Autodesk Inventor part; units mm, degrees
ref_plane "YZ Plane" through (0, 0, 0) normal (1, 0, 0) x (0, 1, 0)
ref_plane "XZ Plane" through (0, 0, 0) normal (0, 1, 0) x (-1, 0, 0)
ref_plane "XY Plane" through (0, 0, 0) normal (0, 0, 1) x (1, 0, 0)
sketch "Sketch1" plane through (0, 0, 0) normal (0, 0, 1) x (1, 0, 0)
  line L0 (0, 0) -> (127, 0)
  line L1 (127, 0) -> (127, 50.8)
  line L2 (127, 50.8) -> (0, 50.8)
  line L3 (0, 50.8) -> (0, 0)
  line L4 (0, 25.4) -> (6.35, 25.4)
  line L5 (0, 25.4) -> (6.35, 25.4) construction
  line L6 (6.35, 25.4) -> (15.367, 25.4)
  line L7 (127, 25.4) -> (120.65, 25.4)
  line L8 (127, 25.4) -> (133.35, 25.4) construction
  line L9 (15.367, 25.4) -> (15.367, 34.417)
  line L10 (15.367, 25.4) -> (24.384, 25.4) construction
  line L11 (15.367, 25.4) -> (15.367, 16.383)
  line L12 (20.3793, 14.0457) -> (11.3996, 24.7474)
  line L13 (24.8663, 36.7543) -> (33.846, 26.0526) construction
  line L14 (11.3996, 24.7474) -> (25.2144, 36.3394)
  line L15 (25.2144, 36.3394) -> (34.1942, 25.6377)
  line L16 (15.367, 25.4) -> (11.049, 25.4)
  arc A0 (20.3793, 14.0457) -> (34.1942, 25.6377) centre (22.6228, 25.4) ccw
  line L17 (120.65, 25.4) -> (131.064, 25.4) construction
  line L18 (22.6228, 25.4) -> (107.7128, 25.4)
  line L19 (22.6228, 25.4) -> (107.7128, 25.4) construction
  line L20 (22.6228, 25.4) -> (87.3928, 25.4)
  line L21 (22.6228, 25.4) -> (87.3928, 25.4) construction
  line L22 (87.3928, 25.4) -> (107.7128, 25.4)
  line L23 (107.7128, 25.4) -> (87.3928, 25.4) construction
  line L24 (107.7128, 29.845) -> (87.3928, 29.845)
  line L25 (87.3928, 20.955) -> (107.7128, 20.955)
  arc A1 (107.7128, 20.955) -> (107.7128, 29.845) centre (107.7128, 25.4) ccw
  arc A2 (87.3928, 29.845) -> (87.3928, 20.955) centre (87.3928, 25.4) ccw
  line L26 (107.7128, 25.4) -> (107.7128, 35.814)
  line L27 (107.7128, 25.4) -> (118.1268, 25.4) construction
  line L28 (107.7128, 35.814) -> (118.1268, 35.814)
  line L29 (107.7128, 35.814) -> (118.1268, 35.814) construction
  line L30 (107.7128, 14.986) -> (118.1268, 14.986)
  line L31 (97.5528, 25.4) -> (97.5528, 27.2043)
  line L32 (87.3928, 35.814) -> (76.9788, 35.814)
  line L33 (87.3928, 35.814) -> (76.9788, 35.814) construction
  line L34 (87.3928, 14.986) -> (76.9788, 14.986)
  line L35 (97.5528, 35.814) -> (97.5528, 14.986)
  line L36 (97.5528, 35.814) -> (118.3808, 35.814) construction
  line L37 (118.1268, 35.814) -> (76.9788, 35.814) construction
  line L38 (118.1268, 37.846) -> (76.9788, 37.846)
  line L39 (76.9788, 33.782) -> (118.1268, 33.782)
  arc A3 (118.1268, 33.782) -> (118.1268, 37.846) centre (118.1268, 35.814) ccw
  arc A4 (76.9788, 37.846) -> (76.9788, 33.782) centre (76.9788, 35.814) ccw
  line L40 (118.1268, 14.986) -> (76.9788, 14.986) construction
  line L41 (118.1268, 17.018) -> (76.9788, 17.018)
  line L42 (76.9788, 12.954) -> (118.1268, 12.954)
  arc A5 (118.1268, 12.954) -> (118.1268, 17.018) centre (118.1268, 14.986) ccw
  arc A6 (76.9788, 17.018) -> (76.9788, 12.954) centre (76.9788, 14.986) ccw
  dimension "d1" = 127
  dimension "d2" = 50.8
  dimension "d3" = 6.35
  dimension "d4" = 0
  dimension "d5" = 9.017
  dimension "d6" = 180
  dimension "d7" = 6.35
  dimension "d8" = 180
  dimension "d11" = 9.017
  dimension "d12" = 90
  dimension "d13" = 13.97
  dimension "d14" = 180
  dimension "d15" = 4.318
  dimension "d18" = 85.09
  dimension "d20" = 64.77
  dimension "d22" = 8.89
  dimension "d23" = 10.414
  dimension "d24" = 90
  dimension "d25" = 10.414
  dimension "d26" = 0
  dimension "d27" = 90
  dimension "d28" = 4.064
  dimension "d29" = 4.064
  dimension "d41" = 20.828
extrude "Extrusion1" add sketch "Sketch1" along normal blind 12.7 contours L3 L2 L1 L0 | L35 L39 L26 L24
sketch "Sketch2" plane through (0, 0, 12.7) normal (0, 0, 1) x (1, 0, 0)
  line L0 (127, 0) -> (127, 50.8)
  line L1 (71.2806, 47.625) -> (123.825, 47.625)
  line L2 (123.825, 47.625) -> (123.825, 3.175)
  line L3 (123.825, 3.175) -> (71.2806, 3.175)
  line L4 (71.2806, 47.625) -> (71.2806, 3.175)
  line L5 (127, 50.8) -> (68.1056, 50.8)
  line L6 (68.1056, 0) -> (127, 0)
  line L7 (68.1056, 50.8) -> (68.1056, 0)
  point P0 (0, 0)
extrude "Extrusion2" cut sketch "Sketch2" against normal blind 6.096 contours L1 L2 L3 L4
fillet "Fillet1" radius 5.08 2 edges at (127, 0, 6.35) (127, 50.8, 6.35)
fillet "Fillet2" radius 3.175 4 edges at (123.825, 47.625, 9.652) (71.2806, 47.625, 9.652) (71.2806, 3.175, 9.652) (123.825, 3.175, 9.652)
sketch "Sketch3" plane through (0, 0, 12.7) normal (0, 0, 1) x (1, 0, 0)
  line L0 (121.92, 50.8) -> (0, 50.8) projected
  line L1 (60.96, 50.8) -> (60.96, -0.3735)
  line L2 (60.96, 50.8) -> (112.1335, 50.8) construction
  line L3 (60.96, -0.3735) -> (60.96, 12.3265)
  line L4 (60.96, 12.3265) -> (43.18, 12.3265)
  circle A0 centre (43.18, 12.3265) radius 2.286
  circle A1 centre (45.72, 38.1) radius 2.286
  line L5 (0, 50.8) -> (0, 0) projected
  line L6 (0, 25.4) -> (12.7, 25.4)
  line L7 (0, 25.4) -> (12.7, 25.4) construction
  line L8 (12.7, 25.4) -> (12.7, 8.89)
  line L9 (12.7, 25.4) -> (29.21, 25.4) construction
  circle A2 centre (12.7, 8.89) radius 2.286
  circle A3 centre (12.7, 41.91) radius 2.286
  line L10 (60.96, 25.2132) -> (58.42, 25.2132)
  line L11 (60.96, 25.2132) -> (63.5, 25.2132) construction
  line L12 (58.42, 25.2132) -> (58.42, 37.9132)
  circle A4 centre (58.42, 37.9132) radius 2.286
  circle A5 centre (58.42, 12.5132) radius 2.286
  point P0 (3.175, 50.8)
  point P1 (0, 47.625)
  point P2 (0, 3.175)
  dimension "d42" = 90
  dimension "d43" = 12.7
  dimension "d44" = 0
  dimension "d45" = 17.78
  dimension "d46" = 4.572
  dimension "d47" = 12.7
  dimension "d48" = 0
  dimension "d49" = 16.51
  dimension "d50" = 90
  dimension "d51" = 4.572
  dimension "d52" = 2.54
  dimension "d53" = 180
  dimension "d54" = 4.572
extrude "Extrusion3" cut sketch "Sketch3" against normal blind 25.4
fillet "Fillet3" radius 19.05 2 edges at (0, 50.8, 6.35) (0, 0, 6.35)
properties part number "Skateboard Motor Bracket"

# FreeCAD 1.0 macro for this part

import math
import FreeCAD as App
import Part
import Sketcher
Q = App.Units.Quantity


def edges_at(feature, points):
    """Names of the edges that pass closest to the given points."""
    edges = feature.Shape.Edges
    near = lambda p: min(range(len(edges)), key=lambda i: edges[i].distToShape(Part.Vertex(*p))[0])
    return sorted({f"Edge{near(p) + 1}" for p in points})


def add_polygon(sketch, points):
    """Adds a closed chain of lines whose ends are joined by coincident constraints."""
    first, n = sketch.GeometryCount, len(points)
    for a, b in zip(points, points[1:] + points[:1]):
        sketch.addGeometry(Part.LineSegment(App.Vector(*a, 0), App.Vector(*b, 0)), False)
    for i in range(n):
        sketch.addConstraint(Sketcher.Constraint("Coincident", first + i, 2, first + (i + 1) % n, 1))

doc = App.newDocument("Part")
body = doc.addObject("PartDesign::Body", "Body")

sketch1 = body.newObject("Sketcher::SketchObject", "Sketch")
sketch1.AttachmentSupport = (doc.getObject("XY_Plane"), [""])
sketch1.MapMode = "FlatFace"
add_polygon(sketch1, [(0, 25.4), (0, 0), (127, 0), (127, 50.8), (0, 50.8)])
sketch1.addGeometry(Part.LineSegment(App.Vector(11.4, 24.75, 0), App.Vector(12.18, 25.4, 0)), False)
sketch1.addGeometry(Part.LineSegment(App.Vector(12.18, 25.4, 0), App.Vector(25.21, 36.34, 0)), False)
sketch1.addGeometry(Part.LineSegment(App.Vector(25.21, 36.34, 0), App.Vector(34.19, 25.64, 0)), False)
sketch1.addGeometry(Part.ArcOfCircle(Part.Circle(App.Vector(22.62, 25.4, 0), App.Vector(0, 0, 1), 11.57), math.radians(0), math.radians(1.18)), False)
sketch1.addGeometry(Part.ArcOfCircle(Part.Circle(App.Vector(22.62, 25.4, 0), App.Vector(0, 0, 1), 11.57), math.radians(-101), math.radians(0)), False)
sketch1.addGeometry(Part.LineSegment(App.Vector(20.38, 14.05, 0), App.Vector(11.4, 24.75, 0)), False)
sketch1.addGeometry(Part.LineSegment(App.Vector(76.98, 17.02, 0), App.Vector(97.55, 17.02, 0)), False)
sketch1.addGeometry(Part.LineSegment(App.Vector(97.55, 17.02, 0), App.Vector(118.13, 17.02, 0)), False)
sketch1.addGeometry(Part.ArcOfCircle(Part.Circle(App.Vector(118.13, 14.99, 0), App.Vector(0, 0, 1), 2.03), math.radians(-90), math.radians(90)), False)
sketch1.addGeometry(Part.LineSegment(App.Vector(118.13, 12.95, 0), App.Vector(76.98, 12.95, 0)), False)
sketch1.addGeometry(Part.ArcOfCircle(Part.Circle(App.Vector(76.98, 14.99, 0), App.Vector(0, 0, 1), 2.03), math.radians(90), math.radians(270)), False)
sketch1.addGeometry(Part.ArcOfCircle(Part.Circle(App.Vector(87.39, 25.4, 0), App.Vector(0, 0, 1), 4.45), math.radians(180), math.radians(270)), False)
sketch1.addGeometry(Part.ArcOfCircle(Part.Circle(App.Vector(87.39, 25.4, 0), App.Vector(0, 0, 1), 4.45), math.radians(90), math.radians(180)), False)
sketch1.addGeometry(Part.LineSegment(App.Vector(87.39, 29.84, 0), App.Vector(107.71, 29.84, 0)), False)
sketch1.addGeometry(Part.ArcOfCircle(Part.Circle(App.Vector(107.71, 25.4, 0), App.Vector(0, 0, 1), 4.45), math.radians(-90), math.radians(90)), False)
sketch1.addGeometry(Part.LineSegment(App.Vector(107.71, 20.95, 0), App.Vector(97.55, 20.95, 0)), False)
sketch1.addGeometry(Part.LineSegment(App.Vector(97.55, 20.95, 0), App.Vector(87.39, 20.95, 0)), False)
sketch1.addGeometry(Part.LineSegment(App.Vector(118.13, 33.78, 0), App.Vector(76.98, 33.78, 0)), False)
sketch1.addGeometry(Part.ArcOfCircle(Part.Circle(App.Vector(76.98, 35.81, 0), App.Vector(0, 0, 1), 2.03), math.radians(90), math.radians(270)), False)
sketch1.addGeometry(Part.LineSegment(App.Vector(76.98, 37.85, 0), App.Vector(118.13, 37.85, 0)), False)
sketch1.addGeometry(Part.ArcOfCircle(Part.Circle(App.Vector(118.13, 35.81, 0), App.Vector(0, 0, 1), 2.03), math.radians(-90), math.radians(90)), False)
sketch1.addConstraint([
    Sketcher.Constraint("Coincident", 5, 2, 6, 1),
    Sketcher.Constraint("Coincident", 6, 2, 7, 1),
    Sketcher.Constraint("Coincident", 7, 2, 8, 2),
    Sketcher.Constraint("Tangent", 8, 1, 9, 2),
    Sketcher.Constraint("Coincident", 9, 1, 10, 1),
    Sketcher.Constraint("Coincident", 10, 2, 5, 1),
    Sketcher.Constraint("Coincident", 11, 2, 12, 1),
    Sketcher.Constraint("Tangent", 12, 2, 13, 2),
    Sketcher.Constraint("Tangent", 13, 1, 14, 1),
    Sketcher.Constraint("Tangent", 14, 2, 15, 2),
    Sketcher.Constraint("Tangent", 15, 1, 11, 1),
    Sketcher.Constraint("Tangent", 16, 1, 17, 2),
    Sketcher.Constraint("Tangent", 17, 1, 18, 1),
    Sketcher.Constraint("Tangent", 18, 2, 19, 2),
    Sketcher.Constraint("Tangent", 19, 1, 20, 1),
    Sketcher.Constraint("Coincident", 20, 2, 21, 1),
    Sketcher.Constraint("Tangent", 21, 2, 16, 2),
    Sketcher.Constraint("Tangent", 22, 2, 23, 2),
    Sketcher.Constraint("Tangent", 23, 1, 24, 1),
    Sketcher.Constraint("Tangent", 24, 2, 25, 2),
    Sketcher.Constraint("Tangent", 25, 1, 22, 1),
    Sketcher.Constraint("Vertical", 0),
    Sketcher.Constraint("Horizontal", 1),
    Sketcher.Constraint("Vertical", 2),
    Sketcher.Constraint("Horizontal", 3),
    Sketcher.Constraint("Vertical", 4),
    Sketcher.Constraint("Horizontal", 11),
    Sketcher.Constraint("Horizontal", 12),
    Sketcher.Constraint("Horizontal", 14),
    Sketcher.Constraint("Horizontal", 18),
    Sketcher.Constraint("Horizontal", 20),
    Sketcher.Constraint("Horizontal", 21),
    Sketcher.Constraint("Horizontal", 22),
    Sketcher.Constraint("Horizontal", 24),
    Sketcher.Constraint("Coincident", 0, 2, -1, 1),
    Sketcher.Constraint("Equal", 8, 9),
    Sketcher.Constraint("Equal", 16, 17),
    Sketcher.Constraint("Equal", 15, 23),
    Sketcher.Constraint("Parallel", 5, 6),
    Sketcher.Constraint("Perpendicular", 6, 7),
    Sketcher.Constraint("Parallel", 7, 10),
    Sketcher.Constraint("Horizontal", 9, 3, 16, 3),
    Sketcher.Constraint("Horizontal", 19, 3, 4, 2),
    Sketcher.Constraint("Horizontal", 4, 2, 5, 2),
    Sketcher.Constraint("Horizontal", 5, 2, 8, 1),
    Sketcher.Constraint("Horizontal", 8, 1, 16, 1),
    Sketcher.Constraint("Vertical", 15, 3, 23, 3),
    Sketcher.Constraint("Vertical", 13, 3, 25, 3),
    Sketcher.Constraint("Vertical", 11, 2, 20, 2),
    Sketcher.Constraint("Equal", 11, 12),
    Sketcher.Constraint("Equal", 20, 21),
    Sketcher.Constraint("Equal", 0, 4),
    Sketcher.Constraint("Equal", 7, 10),
    Sketcher.Constraint("DistanceX", 1, 1, 1, 2, Q("5 in")),
    Sketcher.Constraint("DistanceY", 2, 1, 2, 2, Q("2 in")),
    Sketcher.Constraint("Radius", 13, Q("0.08 in")),
    Sketcher.Constraint("Radius", 16, Q("0.175 in")),
    Sketcher.Constraint("Distance", 7, Q("0.55 in")),
    Sketcher.Constraint("DistanceY", 13, 3, 8, 3, Q("0.41 in")),
    Sketcher.Constraint("DistanceX", 15, 3, 16, 3, Q("0.41 in")),
    Sketcher.Constraint("DistanceX", 8, 3, 16, 3, Q("2.55 in")),
    Sketcher.Constraint("DistanceX", 8, 3, 19, 3, Q("3.35 in")),
    Sketcher.Constraint("DistanceY", 16, 3, 23, 3, Q("0.41 in")),
    Sketcher.Constraint("Angle", 5, Q("40 deg")),
    Sketcher.Constraint("Radius", 8, Q("11.5738 mm")),
    Sketcher.Constraint("DistanceX", 9, 1, 8, 1, Q("0.544 in")),
    Sketcher.Constraint("DistanceX", -1, 1, 6, 2, Q("0.9927 in")),
])
pad1 = body.newObject("PartDesign::Pad", "Pad")
pad1.Profile = sketch1
pad1.Length = Q("0.5 in")

sketch2 = body.newObject("Sketcher::SketchObject", "Sketch001")
sketch2.AttachmentSupport = (doc.getObject("XY_Plane"), [""])
sketch2.MapMode = "FlatFace"
sketch2.AttachmentOffset = App.Placement(App.Vector(0, 0, 0.5 * 25.4), App.Rotation())
add_polygon(sketch2, [(124, 48), (71, 48), (71, 3), (124, 3)])
sketch2.addConstraint([
    Sketcher.Constraint("Horizontal", 0),
    Sketcher.Constraint("Vertical", 1),
    Sketcher.Constraint("Horizontal", 2),
    Sketcher.Constraint("Vertical", 3),
    Sketcher.Constraint("DistanceY", 1, 2, 1, 1, Q("1.75 in")),
    Sketcher.Constraint("DistanceY", -1, 1, 0, 2, Q("1.875 in")),
    Sketcher.Constraint("DistanceX", -1, 1, 2, 2, Q("4.875 in")),
    Sketcher.Constraint("DistanceX", 0, 2, 0, 1, Q("52.5444 mm")),
])
pocket1 = body.newObject("PartDesign::Pocket", "Pocket")
pocket1.Profile = sketch2
pocket1.Length = Q("0.24 in")
doc.recompute()

fillet = body.newObject("PartDesign::Fillet", "Fillet")
fillet.Base = (pocket1, edges_at(pocket1, [(127, 0, 6.35), (127, 50.8, 6.35)]))
fillet.Radius = Q("0.2 in")
doc.recompute()

fillet2 = body.newObject("PartDesign::Fillet", "Fillet001")
fillet2.Base = (fillet, edges_at(fillet, [
    (123.825, 47.625, 9.652),
    (71.281, 47.625, 9.652),
    (71.281, 3.175, 9.652),
    (123.825, 3.175, 9.652),
]))
fillet2.Radius = Q("0.125 in")

sketch3 = body.newObject("Sketcher::SketchObject", "Sketch002")
sketch3.AttachmentSupport = (doc.getObject("XY_Plane"), [""])
sketch3.MapMode = "FlatFace"
sketch3.AttachmentOffset = App.Placement(App.Vector(0, 0, 0.5 * 25.4), App.Rotation())
sketch3.addGeometry([
    Part.Circle(App.Vector(12.7, 8.9, 0), App.Vector(0, 0, 1), 2.3),
    Part.Circle(App.Vector(43.2, 12.3, 0), App.Vector(0, 0, 1), 2.3),
    Part.Circle(App.Vector(58.4, 12.5, 0), App.Vector(0, 0, 1), 2.3),
    Part.Circle(App.Vector(58.4, 37.9, 0), App.Vector(0, 0, 1), 2.3),
    Part.Circle(App.Vector(45.7, 38.1, 0), App.Vector(0, 0, 1), 2.3),
    Part.Circle(App.Vector(12.7, 41.9, 0), App.Vector(0, 0, 1), 2.3),
], False)
sketch3.addConstraint([
    Sketcher.Constraint("Equal", 0, 1),
    Sketcher.Constraint("Equal", 1, 2),
    Sketcher.Constraint("Equal", 2, 3),
    Sketcher.Constraint("Equal", 3, 4),
    Sketcher.Constraint("Equal", 4, 5),
    Sketcher.Constraint("Vertical", 2, 3, 3, 3),
    Sketcher.Constraint("Vertical", 0, 3, 5, 3),
    Sketcher.Constraint("Diameter", 0, Q("0.18 in")),
    Sketcher.Constraint("DistanceX", -1, 1, 0, 3, Q("0.5 in")),
    Sketcher.Constraint("DistanceX", 4, 3, 3, 3, Q("0.5 in")),
    Sketcher.Constraint("DistanceX", 1, 3, 4, 3, Q("0.1 in")),
    Sketcher.Constraint("DistanceY", 2, 3, 3, 3, Q("1 in")),
    Sketcher.Constraint("DistanceX", -1, 1, 1, 3, Q("1.7 in")),
    Sketcher.Constraint("DistanceY", -1, 1, 4, 3, Q("1.5 in")),
    Sketcher.Constraint("DistanceY", 0, 3, 5, 3, Q("1.3 in")),
    Sketcher.Constraint("DistanceY", -1, 1, 0, 3, Q("0.35 in")),
    Sketcher.Constraint("DistanceY", -1, 1, 1, 3, Q("0.4853 in")),
    Sketcher.Constraint("DistanceY", -1, 1, 2, 3, Q("12.5132 mm")),
])
pocket2 = body.newObject("PartDesign::Pocket", "Pocket001")
pocket2.Profile = sketch3
pocket2.Length = Q("1 in")
doc.recompute()

fillet3 = body.newObject("PartDesign::Fillet", "Fillet002")
fillet3.Base = (pocket2, edges_at(pocket2, [(0, 50.8, 6.35), (0, 0, 6.35)]))
fillet3.Radius = Q("0.75 in")

doc.recompute()
